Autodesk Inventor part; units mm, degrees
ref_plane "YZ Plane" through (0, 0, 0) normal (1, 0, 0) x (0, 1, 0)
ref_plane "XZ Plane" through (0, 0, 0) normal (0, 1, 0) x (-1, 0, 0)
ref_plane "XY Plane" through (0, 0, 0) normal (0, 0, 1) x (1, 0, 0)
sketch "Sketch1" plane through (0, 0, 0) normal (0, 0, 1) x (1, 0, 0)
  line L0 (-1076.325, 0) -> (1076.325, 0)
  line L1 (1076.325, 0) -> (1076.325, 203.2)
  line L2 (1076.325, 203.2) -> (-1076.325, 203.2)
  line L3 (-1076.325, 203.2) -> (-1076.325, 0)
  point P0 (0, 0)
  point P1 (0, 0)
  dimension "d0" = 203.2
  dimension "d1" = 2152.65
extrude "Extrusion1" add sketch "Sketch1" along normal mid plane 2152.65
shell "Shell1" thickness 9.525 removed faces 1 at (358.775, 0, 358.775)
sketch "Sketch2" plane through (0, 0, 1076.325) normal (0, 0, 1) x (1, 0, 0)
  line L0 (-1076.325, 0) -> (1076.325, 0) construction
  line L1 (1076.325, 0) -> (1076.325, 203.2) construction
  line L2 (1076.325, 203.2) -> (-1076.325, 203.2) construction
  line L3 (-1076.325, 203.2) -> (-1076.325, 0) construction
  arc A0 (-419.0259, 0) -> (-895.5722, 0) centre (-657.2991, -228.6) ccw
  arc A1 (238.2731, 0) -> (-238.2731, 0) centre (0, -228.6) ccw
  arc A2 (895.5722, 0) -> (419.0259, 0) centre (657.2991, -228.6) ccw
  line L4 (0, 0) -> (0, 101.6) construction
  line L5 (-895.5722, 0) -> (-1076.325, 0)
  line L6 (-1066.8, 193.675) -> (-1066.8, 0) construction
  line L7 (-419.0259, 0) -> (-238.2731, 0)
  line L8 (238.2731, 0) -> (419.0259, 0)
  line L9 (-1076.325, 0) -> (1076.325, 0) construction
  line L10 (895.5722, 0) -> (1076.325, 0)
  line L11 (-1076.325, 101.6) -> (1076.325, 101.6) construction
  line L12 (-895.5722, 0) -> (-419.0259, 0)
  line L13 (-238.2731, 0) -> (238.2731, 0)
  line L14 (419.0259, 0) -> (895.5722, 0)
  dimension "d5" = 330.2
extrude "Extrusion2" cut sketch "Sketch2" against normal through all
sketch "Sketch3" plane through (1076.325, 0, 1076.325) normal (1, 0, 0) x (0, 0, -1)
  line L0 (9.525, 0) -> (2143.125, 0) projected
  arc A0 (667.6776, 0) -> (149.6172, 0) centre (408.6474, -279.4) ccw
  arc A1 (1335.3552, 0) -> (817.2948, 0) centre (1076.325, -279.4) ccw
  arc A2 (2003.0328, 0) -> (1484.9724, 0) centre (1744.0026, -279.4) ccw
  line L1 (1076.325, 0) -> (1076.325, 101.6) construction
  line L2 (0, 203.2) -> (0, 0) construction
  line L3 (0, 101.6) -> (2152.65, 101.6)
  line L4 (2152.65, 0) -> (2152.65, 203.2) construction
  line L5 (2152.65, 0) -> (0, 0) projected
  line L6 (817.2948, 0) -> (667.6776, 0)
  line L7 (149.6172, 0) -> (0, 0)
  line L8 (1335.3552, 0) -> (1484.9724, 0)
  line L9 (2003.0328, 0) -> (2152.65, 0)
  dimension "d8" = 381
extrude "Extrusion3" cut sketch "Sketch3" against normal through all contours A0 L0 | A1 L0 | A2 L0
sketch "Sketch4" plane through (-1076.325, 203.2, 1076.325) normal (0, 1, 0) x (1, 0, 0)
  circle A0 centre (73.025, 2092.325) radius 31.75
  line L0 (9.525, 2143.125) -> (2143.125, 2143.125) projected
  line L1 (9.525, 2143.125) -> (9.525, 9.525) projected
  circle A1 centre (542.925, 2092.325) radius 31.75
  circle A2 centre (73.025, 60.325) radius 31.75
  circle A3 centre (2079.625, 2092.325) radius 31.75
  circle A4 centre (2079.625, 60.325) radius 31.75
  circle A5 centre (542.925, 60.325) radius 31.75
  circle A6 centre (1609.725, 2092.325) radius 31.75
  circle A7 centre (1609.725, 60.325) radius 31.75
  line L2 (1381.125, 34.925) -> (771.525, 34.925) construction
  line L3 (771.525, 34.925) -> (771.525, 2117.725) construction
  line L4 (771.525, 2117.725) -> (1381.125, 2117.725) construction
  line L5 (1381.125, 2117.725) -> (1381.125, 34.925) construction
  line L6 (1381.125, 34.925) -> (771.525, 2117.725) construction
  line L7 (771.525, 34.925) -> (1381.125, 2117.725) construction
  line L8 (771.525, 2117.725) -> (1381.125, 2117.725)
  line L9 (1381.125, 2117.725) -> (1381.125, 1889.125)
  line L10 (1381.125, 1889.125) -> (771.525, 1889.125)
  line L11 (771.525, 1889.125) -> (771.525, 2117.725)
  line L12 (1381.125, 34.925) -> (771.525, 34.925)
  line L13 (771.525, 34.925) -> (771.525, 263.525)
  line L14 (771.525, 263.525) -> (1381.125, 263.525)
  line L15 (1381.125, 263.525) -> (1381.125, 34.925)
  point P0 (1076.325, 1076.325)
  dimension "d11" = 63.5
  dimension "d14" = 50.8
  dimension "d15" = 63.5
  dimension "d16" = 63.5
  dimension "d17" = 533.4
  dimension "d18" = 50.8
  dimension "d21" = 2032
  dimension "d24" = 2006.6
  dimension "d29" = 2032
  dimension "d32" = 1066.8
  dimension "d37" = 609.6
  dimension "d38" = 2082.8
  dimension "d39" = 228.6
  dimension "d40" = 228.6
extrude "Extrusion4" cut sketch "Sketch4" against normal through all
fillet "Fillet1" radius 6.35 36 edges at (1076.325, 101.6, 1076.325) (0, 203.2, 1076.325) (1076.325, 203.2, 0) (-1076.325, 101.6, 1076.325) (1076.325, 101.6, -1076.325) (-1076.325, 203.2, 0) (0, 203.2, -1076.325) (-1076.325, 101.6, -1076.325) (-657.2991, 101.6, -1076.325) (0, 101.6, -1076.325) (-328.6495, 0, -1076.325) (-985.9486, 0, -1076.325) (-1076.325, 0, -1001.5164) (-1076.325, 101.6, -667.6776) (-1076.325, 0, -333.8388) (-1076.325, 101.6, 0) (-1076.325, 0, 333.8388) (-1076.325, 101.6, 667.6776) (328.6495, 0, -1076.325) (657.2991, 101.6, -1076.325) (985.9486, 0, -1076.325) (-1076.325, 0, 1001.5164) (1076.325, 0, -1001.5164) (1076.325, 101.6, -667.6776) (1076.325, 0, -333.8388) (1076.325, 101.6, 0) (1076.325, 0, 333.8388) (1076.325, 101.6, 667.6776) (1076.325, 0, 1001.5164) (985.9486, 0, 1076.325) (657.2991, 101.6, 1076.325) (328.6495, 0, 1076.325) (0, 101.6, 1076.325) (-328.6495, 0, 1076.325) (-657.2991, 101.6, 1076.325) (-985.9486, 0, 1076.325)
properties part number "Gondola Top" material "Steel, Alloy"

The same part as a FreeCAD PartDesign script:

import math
import FreeCAD as App
import Part
import Sketcher
Q = App.Units.Quantity


def edges_at(feature, points):
    """Names of the edges that pass closest to the given points."""
    edges = feature.Shape.Edges
    near = lambda p: min(range(len(edges)), key=lambda i: edges[i].distToShape(Part.Vertex(*p))[0])
    return sorted({f"Edge{near(p) + 1}" for p in points})


def faces_at(feature, points):
    """Names of the faces that lie closest to the given points."""
    faces = feature.Shape.Faces
    near = lambda p: min(range(len(faces)), key=lambda i: faces[i].distToShape(Part.Vertex(*p))[0])
    return sorted({f"Face{near(p) + 1}" for p in points})


def add_polygon(sketch, points):
    """Adds a closed chain of lines whose ends are joined by coincident constraints."""
    first, n = sketch.GeometryCount, len(points)
    for a, b in zip(points, points[1:] + points[:1]):
        sketch.addGeometry(Part.LineSegment(App.Vector(*a, 0), App.Vector(*b, 0)), False)
    for i in range(n):
        sketch.addConstraint(Sketcher.Constraint("Coincident", first + i, 2, first + (i + 1) % n, 1))

doc = App.newDocument("Part")
params = doc.addObject("Spreadsheet::Sheet", "Params")
for row, (alias, value) in enumerate([
    ("sketch1_height", "8 in"),
    ("sketch1_width", "84.75 in"),
    ("pad1_length", "84.75 in"),
    ("thickness_wall", "0.375 in"),
    ("sketch2_radius", "13 in"),
    ("sketch3_radius", "15 in"),
    ("sketch4_diameter", "2.5 in"),
    ("sketch4_width", "24 in"),
    ("sketch4_height", "9 in"),
    ("fillet_radius", "0.25 in"),
], start=1):
    params.set(f"A{row}", alias)
    params.set(f"B{row}", "=" + value)
    params.setAlias(f"B{row}", alias)

body = doc.addObject("PartDesign::Body", "Body")

# Sketch on XY plane
sketch1 = body.newObject("Sketcher::SketchObject", "Sketch")
sketch1.AttachmentSupport = (doc.getObject("XY_Plane"), [""])
sketch1.MapMode = "FlatFace"
add_polygon(sketch1, [(-1076.325, 203.2), (-1076.325, 0), (1076.325, 0), (1076.325, 203.2)])  # lines 0-3
sketch1.addConstraint([
    Sketcher.Constraint("Vertical", 0),
    Sketcher.Constraint("Horizontal", 1),
    Sketcher.Constraint("Vertical", 2),
    Sketcher.Constraint("Horizontal", 3),
    Sketcher.Constraint("Symmetric", 0, 2, 1, 2, -1, 1),
    Sketcher.Constraint("DistanceY", 0, 2, 0, 1, Q("8 in")),
    Sketcher.Constraint("DistanceX", 1, 1, 1, 2, Q("84.75 in")),
])
sketch1.setExpression("Constraints[9]", "Params.sketch1_height")
sketch1.setExpression("Constraints[10]", "Params.sketch1_width")
pad1 = body.newObject("PartDesign::Pad", "Pad")
pad1.Profile = sketch1
pad1.setExpression("Length", "Params.pad1_length")
pad1.Midplane = True
doc.recompute()

thickness = body.newObject("PartDesign::Thickness", "Thickness")
thickness.Base = (pad1, faces_at(pad1, [(358.775, 0, 358.775)]))
thickness.setExpression("Value", "Params.thickness_wall")
thickness.Reversed = True
thickness.Join = "Intersection"

# Sketch on XY plane
sketch2 = body.newObject("Sketcher::SketchObject", "Sketch001")
sketch2.AttachmentSupport = (doc.getObject("XY_Plane"), [""])
sketch2.MapMode = "FlatFace"
sketch2.AttachmentOffset = App.Placement(App.Vector(0, 0, 42.375 * 25.4), App.Rotation())
sketch2.addGeometry([
    Part.LineSegment(App.Vector(-895.5722, 0, 0), App.Vector(-419.0259, 0, 0)),  # 0
    Part.ArcOfCircle(Part.Circle(App.Vector(-657.2991, -228.6, 0), App.Vector(0, 0, 1), 330.200057), math.radians(43.813052), math.radians(136.186936)),  # 1
    Part.ArcOfCircle(Part.Circle(App.Vector(657.2991, -228.6, 0), App.Vector(0, 0, 1), 330.199985), math.radians(43.813064), math.radians(136.186948)),  # 2
    Part.LineSegment(App.Vector(419.0259, 0, 0), App.Vector(895.5722, 0, 0)),  # 3
    Part.ArcOfCircle(Part.Circle(App.Vector(0, -228.6, 0), App.Vector(0, 0, 1), 330.199985), math.radians(43.813064), math.radians(136.186936)),  # 4
    Part.LineSegment(App.Vector(-238.2731, 0, 0), App.Vector(238.2731, 0, 0)),  # 5
], False)
sketch2.addConstraint([
    Sketcher.Constraint("Coincident", 0, 1, 1, 2),
    Sketcher.Constraint("Coincident", 1, 1, 0, 2),
    Sketcher.Constraint("Coincident", 2, 1, 3, 2),
    Sketcher.Constraint("Coincident", 3, 1, 2, 2),
    Sketcher.Constraint("Coincident", 4, 1, 5, 2),
    Sketcher.Constraint("Coincident", 5, 1, 4, 2),
    Sketcher.Constraint("Horizontal", 0),
    Sketcher.Constraint("Horizontal", 3),
    Sketcher.Constraint("Horizontal", 5),
    Sketcher.Constraint("Equal", 1, 2),
    Sketcher.Constraint("Equal", 2, 4),
    Sketcher.Constraint("Symmetric", 0, 1, 2, 1, -1, 1),
    Sketcher.Constraint("Symmetric", 4, 1, 5, 1, -1, 1),
    Sketcher.Constraint("Symmetric", 1, 3, 2, 3, -2),
    Sketcher.Constraint("Horizontal", 2, 3, 4, 3),
    Sketcher.Constraint("Radius", 1, Q("13 in")),
    Sketcher.Constraint("DistanceY", 1, 3, -1, 1, Q("9 in")),
    Sketcher.Constraint("DistanceX", 1, 1, 2, 3, Q("42.375 in")),
])
sketch2.setExpression("Constraints[15]", "Params.sketch2_radius")
pocket1 = body.newObject("PartDesign::Pocket", "Pocket")
pocket1.Profile = sketch2
pocket1.Type = "ThroughAll"

# Sketch on YZ plane
sketch3 = body.newObject("Sketcher::SketchObject", "Sketch002")
sketch3.AttachmentSupport = (doc.getObject("YZ_Plane"), [""])
sketch3.MapMode = "FlatFace"
sketch3.AttachmentOffset = App.Placement(App.Vector(0, 0, 42.375 * 25.4), App.Rotation())
sketch3.addGeometry([
    Part.ArcOfCircle(Part.Circle(App.Vector(-279.4, 667.6776, 0), App.Vector(0, 0, 1), 381.000006), math.radians(-42.833429), math.radians(42.833429)),  # 0
    Part.LineSegment(App.Vector(0, 926.7078, 0), App.Vector(0, 408.6474, 0)),  # 1
    Part.ArcOfCircle(Part.Circle(App.Vector(-279.4, 0, 0), App.Vector(0, 0, 1), 381.000006), math.radians(-42.833429), math.radians(42.833429)),  # 2
    Part.LineSegment(App.Vector(0, 259.0302, 0), App.Vector(0, -259.0302, 0)),  # 3
    Part.ArcOfCircle(Part.Circle(App.Vector(-279.4, -667.6776, 0), App.Vector(0, 0, 1), 381.000006), math.radians(-42.833429), math.radians(42.833429)),  # 4
    Part.LineSegment(App.Vector(0, -408.6474, 0), App.Vector(0, -926.7078, 0)),  # 5
], False)
sketch3.addConstraint([
    Sketcher.Constraint("Coincident", 0, 1, 1, 2),
    Sketcher.Constraint("Coincident", 1, 1, 0, 2),
    Sketcher.Constraint("Coincident", 2, 1, 3, 2),
    Sketcher.Constraint("Coincident", 3, 1, 2, 2),
    Sketcher.Constraint("Coincident", 4, 1, 5, 2),
    Sketcher.Constraint("Coincident", 5, 1, 4, 2),
    Sketcher.Constraint("Vertical", 1),
    Sketcher.Constraint("Vertical", 3),
    Sketcher.Constraint("Vertical", 5),
    Sketcher.Constraint("Equal", 0, 2),
    Sketcher.Constraint("Equal", 2, 4),
    Sketcher.Constraint("Symmetric", 2, 1, 3, 1, -1, 1),
    Sketcher.Constraint("Symmetric", 1, 1, 4, 1, -1, 1),
    Sketcher.Constraint("Symmetric", 0, 3, 4, 3, -1),
    Sketcher.Constraint("Vertical", 0, 3, 2, 3),
    Sketcher.Constraint("Radius", 0, Q("15 in")),
    Sketcher.Constraint("DistanceX", 0, 3, -1, 1, Q("11 in")),
    Sketcher.Constraint("DistanceY", 4, 3, 0, 1, Q("42.375 in")),
])
sketch3.setExpression("Constraints[15]", "Params.sketch3_radius")
pocket2 = body.newObject("PartDesign::Pocket", "Pocket001")
pocket2.Profile = sketch3
pocket2.Type = "ThroughAll"

# Sketch on XZ plane
sketch4 = body.newObject("Sketcher::SketchObject", "Sketch003")
sketch4.AttachmentSupport = (doc.getObject("XZ_Plane"), [""])
sketch4.MapMode = "FlatFace"
sketch4.AttachmentOffset = App.Placement(App.Vector(0, 0, -8 * 25.4), App.Rotation())
sketch4.addGeometry(Part.Circle(App.Vector(-1003.3, -1016, 0), App.Vector(0, 0, 1), 31.75), False)  # 0
sketch4.addGeometry(Part.Circle(App.Vector(-533.4, -1016, 0), App.Vector(0, 0, 1), 31.75), False)  # 1
sketch4.addGeometry(Part.Circle(App.Vector(-1003.3, 1016, 0), App.Vector(0, 0, 1), 31.75), False)  # 2
sketch4.addGeometry(Part.Circle(App.Vector(1003.3, -1016, 0), App.Vector(0, 0, 1), 31.75), False)  # 3
sketch4.addGeometry(Part.Circle(App.Vector(1003.3, 1016, 0), App.Vector(0, 0, 1), 31.75), False)  # 4
sketch4.addGeometry(Part.Circle(App.Vector(-533.4, 1016, 0), App.Vector(0, 0, 1), 31.75), False)  # 5
sketch4.addGeometry(Part.Circle(App.Vector(533.4, -1016, 0), App.Vector(0, 0, 1), 31.75), False)  # 6
sketch4.addGeometry(Part.Circle(App.Vector(533.4, 1016, 0), App.Vector(0, 0, 1), 31.75), False)  # 7
add_polygon(sketch4, [(304.8, -1041.4), (-304.8, -1041.4), (-304.8, -812.8), (304.8, -812.8)])  # lines 8-11
add_polygon(sketch4, [(-304.8, 1041.4), (304.8, 1041.4), (304.8, 812.8), (-304.8, 812.8)])  # lines 12-15
sketch4.addConstraint([
    Sketcher.Constraint("Horizontal", 8),
    Sketcher.Constraint("Vertical", 9),
    Sketcher.Constraint("Horizontal", 10),
    Sketcher.Constraint("Vertical", 11),
    Sketcher.Constraint("Horizontal", 12),
    Sketcher.Constraint("Vertical", 13),
    Sketcher.Constraint("Horizontal", 14),
    Sketcher.Constraint("Vertical", 15),
    Sketcher.Constraint("Equal", 0, 1),
    Sketcher.Constraint("Equal", 1, 2),
    Sketcher.Constraint("Equal", 2, 3),
    Sketcher.Constraint("Equal", 3, 4),
    Sketcher.Constraint("Equal", 4, 5),
    Sketcher.Constraint("Equal", 5, 6),
    Sketcher.Constraint("Equal", 6, 7),
    Sketcher.Constraint("Symmetric", 2, 3, 3, 3, -1, 1),
    Sketcher.Constraint("Symmetric", 0, 3, 4, 3, -1, 1),
    Sketcher.Constraint("Symmetric", 5, 3, 6, 3, -1, 1),
    Sketcher.Constraint("Symmetric", 1, 3, 7, 3, -1, 1),
    Sketcher.Constraint("Symmetric", 8, 2, 12, 2, -1, 1),
    Sketcher.Constraint("Symmetric", 10, 2, 14, 2, -1, 1),
    Sketcher.Constraint("Symmetric", 0, 3, 3, 3, -2),
    Sketcher.Constraint("Symmetric", 1, 3, 6, 3, -2),
    Sketcher.Constraint("Horizontal", 0, 3, 1, 3),
    Sketcher.Constraint("Vertical", 11, 2, 12, 2),
    Sketcher.Constraint("Diameter", 0, Q("2.5 in")),
    Sketcher.Constraint("DistanceX", 8, 2, 8, 1, Q("24 in")),
    Sketcher.Constraint("DistanceY", 9, 1, 9, 2, Q("9 in")),
    Sketcher.Constraint("DistanceX", 1, 3, -1, 1, Q("21 in")),
    Sketcher.Constraint("DistanceY", 0, 3, 2, 3, Q("80 in")),
    Sketcher.Constraint("DistanceX", 0, 3, 3, 3, Q("79 in")),
    Sketcher.Constraint("DistanceY", 8, 2, -1, 1, Q("41 in")),
])
sketch4.setExpression("Constraints[33]", "Params.sketch4_diameter")
sketch4.setExpression("Constraints[34]", "Params.sketch4_width")
sketch4.setExpression("Constraints[35]", "Params.sketch4_height")
pocket3 = body.newObject("PartDesign::Pocket", "Pocket002")
pocket3.Profile = sketch4
pocket3.Type = "ThroughAll"
pocket3.Reversed = True
doc.recompute()

fillet = body.newObject("PartDesign::Fillet", "Fillet")
fillet.Base = (pocket3, edges_at(pocket3, [
    (1076.325, 101.6, 1076.325),
    (0, 203.2, 1076.325),
    (1076.325, 203.2, 0),
    (-1076.325, 101.6, 1076.325),
    (1076.325, 101.6, -1076.325),
    (-1076.325, 203.2, 0),
    (0, 203.2, -1076.325),
    (-1076.325, 101.6, -1076.325),
    (-657.299, 101.6, -1076.325),
    (0, 101.6, -1076.325),
    (-328.649, 0, -1076.325),
    (-985.949, 0, -1076.325),
    (-1076.325, 0, -1001.516),
    (-1076.325, 101.6, -667.678),
    (-1076.325, 0, -333.839),
    (-1076.325, 101.6, 0),
    (-1076.325, 0, 333.839),
    (-1076.325, 101.6, 667.678),
    (328.649, 0, -1076.325),
    (657.299, 101.6, -1076.325),
    (985.949, 0, -1076.325),
    (-1076.325, 0, 1001.516),
    (1076.325, 0, -1001.516),
    (1076.325, 101.6, -667.678),
    (1076.325, 0, -333.839),
    (1076.325, 101.6, 0),
    (1076.325, 0, 333.839),
    (1076.325, 101.6, 667.678),
    (1076.325, 0, 1001.516),
    (985.949, 0, 1076.325),
    (657.299, 101.6, 1076.325),
    (328.649, 0, 1076.325),
    (0, 101.6, 1076.325),
    (-328.649, 0, 1076.325),
    (-657.299, 101.6, 1076.325),
    (-985.949, 0, 1076.325),
]))
fillet.setExpression("Radius", "Params.fillet_radius")

doc.recompute()
